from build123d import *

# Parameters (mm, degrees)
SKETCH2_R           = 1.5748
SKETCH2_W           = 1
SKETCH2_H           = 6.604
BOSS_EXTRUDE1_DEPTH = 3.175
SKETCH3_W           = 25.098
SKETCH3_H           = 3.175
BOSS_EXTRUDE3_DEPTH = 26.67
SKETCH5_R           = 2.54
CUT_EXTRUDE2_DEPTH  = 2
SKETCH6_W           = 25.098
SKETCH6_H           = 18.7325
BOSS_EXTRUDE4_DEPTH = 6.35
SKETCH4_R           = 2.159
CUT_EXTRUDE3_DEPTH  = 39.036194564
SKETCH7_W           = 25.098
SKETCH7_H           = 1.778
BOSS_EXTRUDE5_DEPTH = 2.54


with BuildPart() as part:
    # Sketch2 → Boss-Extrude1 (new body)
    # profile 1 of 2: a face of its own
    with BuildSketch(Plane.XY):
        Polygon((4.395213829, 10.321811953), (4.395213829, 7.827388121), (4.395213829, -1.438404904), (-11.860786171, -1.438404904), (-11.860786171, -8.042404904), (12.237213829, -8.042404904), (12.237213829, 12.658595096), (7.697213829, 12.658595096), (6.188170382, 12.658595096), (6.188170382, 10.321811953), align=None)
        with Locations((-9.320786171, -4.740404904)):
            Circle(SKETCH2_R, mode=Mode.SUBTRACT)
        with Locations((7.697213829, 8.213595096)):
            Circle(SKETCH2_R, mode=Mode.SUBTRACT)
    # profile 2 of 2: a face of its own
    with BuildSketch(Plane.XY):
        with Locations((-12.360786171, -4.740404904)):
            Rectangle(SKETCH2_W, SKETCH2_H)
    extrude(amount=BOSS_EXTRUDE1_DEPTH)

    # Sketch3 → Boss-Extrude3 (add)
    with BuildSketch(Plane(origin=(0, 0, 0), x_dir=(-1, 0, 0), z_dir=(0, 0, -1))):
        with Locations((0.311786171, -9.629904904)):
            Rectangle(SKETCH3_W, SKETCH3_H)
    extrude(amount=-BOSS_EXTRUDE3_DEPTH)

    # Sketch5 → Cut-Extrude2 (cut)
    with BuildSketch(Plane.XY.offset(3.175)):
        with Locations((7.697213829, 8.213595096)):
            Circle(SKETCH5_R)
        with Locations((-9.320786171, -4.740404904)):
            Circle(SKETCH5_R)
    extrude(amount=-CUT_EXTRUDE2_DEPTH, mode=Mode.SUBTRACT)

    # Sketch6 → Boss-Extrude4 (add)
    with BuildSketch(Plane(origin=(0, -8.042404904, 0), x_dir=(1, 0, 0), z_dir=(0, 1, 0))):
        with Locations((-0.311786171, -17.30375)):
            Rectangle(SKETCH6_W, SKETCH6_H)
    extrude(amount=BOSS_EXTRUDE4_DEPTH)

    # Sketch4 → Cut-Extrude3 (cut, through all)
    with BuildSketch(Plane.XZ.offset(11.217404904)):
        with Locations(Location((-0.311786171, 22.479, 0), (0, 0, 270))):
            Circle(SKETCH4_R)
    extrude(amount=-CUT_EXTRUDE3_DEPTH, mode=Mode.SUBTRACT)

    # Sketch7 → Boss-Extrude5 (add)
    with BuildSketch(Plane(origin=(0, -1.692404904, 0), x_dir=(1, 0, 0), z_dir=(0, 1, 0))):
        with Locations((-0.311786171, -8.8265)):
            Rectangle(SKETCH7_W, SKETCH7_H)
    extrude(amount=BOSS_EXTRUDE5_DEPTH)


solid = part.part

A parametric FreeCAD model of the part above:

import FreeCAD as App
import Part
import Sketcher
Q = App.Units.Quantity


def add_polygon(sketch, points):
    """Adds a closed chain of lines whose ends are joined by coincident constraints."""
    first, n = sketch.GeometryCount, len(points)
    for a, b in zip(points, points[1:] + points[:1]):
        sketch.addGeometry(Part.LineSegment(App.Vector(*a, 0), App.Vector(*b, 0)), False)
    for i in range(n):
        sketch.addConstraint(Sketcher.Constraint("Coincident", first + i, 2, first + (i + 1) % n, 1))

doc = App.newDocument("Part")
body = doc.addObject("PartDesign::Body", "Body")

# Sketch on XY plane
sketch1 = body.newObject("Sketcher::SketchObject", "Sketch")
sketch1.AttachmentSupport = (doc.getObject("XY_Plane"), [""])
sketch1.MapMode = "FlatFace"
add_polygon(sketch1, [(4.4, 10.3), (4.4, -1.4), (-12.9, -1.4), (-12.9, -8), (12.2, -8), (12.2, 12.7), (6.2, 12.7), (6.2, 10.3)])  # lines 0-7
sketch1.addGeometry(Part.Circle(App.Vector(-9.3, -4.7, 0), App.Vector(0, 0, 1), 1.6), False)  # 8
sketch1.addGeometry(Part.Circle(App.Vector(7.7, 8.2, 0), App.Vector(0, 0, 1), 1.6), False)  # 9
sketch1.addConstraint([
    Sketcher.Constraint("Vertical", 0),
    Sketcher.Constraint("Horizontal", 1),
    Sketcher.Constraint("Vertical", 2),
    Sketcher.Constraint("Horizontal", 3),
    Sketcher.Constraint("Vertical", 4),
    Sketcher.Constraint("Horizontal", 5),
    Sketcher.Constraint("Vertical", 6),
    Sketcher.Constraint("Horizontal", 7),
    Sketcher.Constraint("Equal", 8, 9),
    Sketcher.Constraint("Diameter", 8, Q("0.124 in")),
    Sketcher.Constraint("DistanceY", 2, 2, 2, 1, Q("0.26 in")),
    Sketcher.Constraint("DistanceY", 4, 1, 4, 2, Q("0.815 in")),
    Sketcher.Constraint("DistanceX", 8, 3, 9, 3, Q("0.67 in")),
    Sketcher.Constraint("DistanceY", 8, 3, 9, 3, Q("0.51 in")),
    Sketcher.Constraint("DistanceX", 0, 2, 9, 3, Q("0.13 in")),
    Sketcher.Constraint("DistanceY", 0, 2, 9, 3, Q("0.38 in")),
    Sketcher.Constraint("DistanceX", 1, 2, 1, 1, Q("17.256 mm")),
    Sketcher.Constraint("DistanceX", 3, 1, 3, 2, Q("25.098 mm")),
    Sketcher.Constraint("DistanceX", 5, 2, 5, 1, Q("6.049043 mm")),
    Sketcher.Constraint("DistanceY", 0, 2, 0, 1, Q("11.760217 mm")),
    Sketcher.Constraint("DistanceX", -1, 1, 5, 2, Q("6.18817 mm")),
    Sketcher.Constraint("DistanceY", -1, 1, 6, 2, Q("10.321812 mm")),
])
pad1 = body.newObject("PartDesign::Pad", "Pad")
pad1.Profile = sketch1
pad1.Length = Q("0.125 in")

# Sketch on XY plane
sketch2 = body.newObject("Sketcher::SketchObject", "Sketch001")
sketch2.AttachmentSupport = (doc.getObject("XY_Plane"), [""])
sketch2.MapMode = "FlatFace"
add_polygon(sketch2, [(12.2, -8), (12.2, -11.2), (-12.9, -11.2), (-12.9, -8)])  # lines 0-3
sketch2.addConstraint([
    Sketcher.Constraint("Vertical", 0),
    Sketcher.Constraint("Horizontal", 1),
    Sketcher.Constraint("Vertical", 2),
    Sketcher.Constraint("Horizontal", 3),
    Sketcher.Constraint("DistanceY", 0, 2, 0, 1, Q("0.125 in")),
    Sketcher.Constraint("DistanceX", 1, 2, 1, 1, Q("25.098 mm")),
    Sketcher.Constraint("DistanceX", -1, 1, 0, 2, Q("12.237214 mm")),
    Sketcher.Constraint("DistanceY", 0, 2, -1, 1, Q("11.217405 mm")),
])
pad2 = body.newObject("PartDesign::Pad", "Pad001")
pad2.Profile = sketch2
pad2.Length = Q("1.05 in")

# Sketch on XY plane
sketch3 = body.newObject("Sketcher::SketchObject", "Sketch002")
sketch3.AttachmentSupport = (doc.getObject("XY_Plane"), [""])
sketch3.MapMode = "FlatFace"
sketch3.AttachmentOffset = App.Placement(App.Vector(0, 0, 0.125 * 25.4), App.Rotation())
sketch3.addGeometry([
    Part.Circle(App.Vector(7.7, 8.2, 0), App.Vector(0, 0, 1), 2.5),
    Part.Circle(App.Vector(-9.3, -4.7, 0), App.Vector(0, 0, 1), 2.5),
], False)
sketch3.addConstraint([
    Sketcher.Constraint("Equal", 0, 1),
    Sketcher.Constraint("Diameter", 0, Q("0.2 in")),
    Sketcher.Constraint("DistanceX", 1, 3, 0, 3, Q("0.67 in")),
    Sketcher.Constraint("DistanceY", 1, 3, 0, 3, Q("0.51 in")),
    Sketcher.Constraint("DistanceX", -1, 1, 0, 3, Q("7.697214 mm")),
    Sketcher.Constraint("DistanceY", -1, 1, 0, 3, Q("8.213595 mm")),
])
pocket1 = body.newObject("PartDesign::Pocket", "Pocket")
pocket1.Profile = sketch3
pocket1.Length = 2

# Sketch on XZ plane
sketch4 = body.newObject("Sketcher::SketchObject", "Sketch003")
sketch4.AttachmentSupport = (doc.getObject("XZ_Plane"), [""])
sketch4.MapMode = "FlatFace"
sketch4.AttachmentOffset = App.Placement(App.Vector(0, 0, 8.042405), App.Rotation())
add_polygon(sketch4, [(-13, 8), (-13, 27), (12, 27), (12, 8)])  # lines 0-3
sketch4.addConstraint([
    Sketcher.Constraint("Vertical", 0),
    Sketcher.Constraint("Horizontal", 1),
    Sketcher.Constraint("Vertical", 2),
    Sketcher.Constraint("Horizontal", 3),
    Sketcher.Constraint("DistanceY", -1, 1, 0, 2, Q("1.05 in")),
    Sketcher.Constraint("DistanceY", 0, 1, 0, 2, Q("0.7375 in")),
    Sketcher.Constraint("DistanceX", 1, 1, 1, 2, Q("25.098 mm")),
    Sketcher.Constraint("DistanceX", 0, 2, -1, 1, Q("12.860786 mm")),
])
pad3 = body.newObject("PartDesign::Pad", "Pad002")
pad3.Profile = sketch4
pad3.Length = Q("0.25 in")
pad3.Reversed = True

# Sketch on XZ plane
sketch5 = body.newObject("Sketcher::SketchObject", "Sketch004")
sketch5.AttachmentSupport = (doc.getObject("XZ_Plane"), [""])
sketch5.MapMode = "FlatFace"
sketch5.AttachmentOffset = App.Placement(App.Vector(0, 0, 11.217405), App.Rotation())
sketch5.addGeometry(Part.Circle(App.Vector(-0.3, 22.5, 0), App.Vector(0, 0, 1), 2.2), False)
sketch5.addConstraint([
    Sketcher.Constraint("Diameter", 0, Q("0.17 in")),
    Sketcher.Constraint("DistanceY", -1, 1, 0, 3, Q("0.885 in")),
    Sketcher.Constraint("DistanceX", 0, 3, -1, 1, Q("0.311786 mm")),
])
pocket2 = body.newObject("PartDesign::Pocket", "Pocket001")
pocket2.Profile = sketch5
pocket2.Type = "ThroughAll"

# Sketch on XZ plane
sketch6 = body.newObject("Sketcher::SketchObject", "Sketch005")
sketch6.AttachmentSupport = (doc.getObject("XZ_Plane"), [""])
sketch6.MapMode = "FlatFace"
sketch6.AttachmentOffset = App.Placement(App.Vector(0, 0, 1.692405), App.Rotation())
add_polygon(sketch6, [(-12.9, 7.9), (-12.9, 9.7), (12.2, 9.7), (12.2, 7.9)])  # lines 0-3
sketch6.addConstraint([
    Sketcher.Constraint("Vertical", 0),
    Sketcher.Constraint("Horizontal", 1),
    Sketcher.Constraint("Vertical", 2),
    Sketcher.Constraint("Horizontal", 3),
    Sketcher.Constraint("DistanceY", 0, 1, 0, 2, Q("0.07 in")),
    Sketcher.Constraint("DistanceY", -1, 1, 2, 2, Q("0.3125 in")),
    Sketcher.Constraint("DistanceX", 1, 1, 1, 2, Q("25.098 mm")),
    Sketcher.Constraint("DistanceX", 0, 2, -1, 1, Q("12.860786 mm")),
])
pad4 = body.newObject("PartDesign::Pad", "Pad003")
pad4.Profile = sketch6
pad4.Length = Q("0.1 in")
pad4.Reversed = True

doc.recompute()
